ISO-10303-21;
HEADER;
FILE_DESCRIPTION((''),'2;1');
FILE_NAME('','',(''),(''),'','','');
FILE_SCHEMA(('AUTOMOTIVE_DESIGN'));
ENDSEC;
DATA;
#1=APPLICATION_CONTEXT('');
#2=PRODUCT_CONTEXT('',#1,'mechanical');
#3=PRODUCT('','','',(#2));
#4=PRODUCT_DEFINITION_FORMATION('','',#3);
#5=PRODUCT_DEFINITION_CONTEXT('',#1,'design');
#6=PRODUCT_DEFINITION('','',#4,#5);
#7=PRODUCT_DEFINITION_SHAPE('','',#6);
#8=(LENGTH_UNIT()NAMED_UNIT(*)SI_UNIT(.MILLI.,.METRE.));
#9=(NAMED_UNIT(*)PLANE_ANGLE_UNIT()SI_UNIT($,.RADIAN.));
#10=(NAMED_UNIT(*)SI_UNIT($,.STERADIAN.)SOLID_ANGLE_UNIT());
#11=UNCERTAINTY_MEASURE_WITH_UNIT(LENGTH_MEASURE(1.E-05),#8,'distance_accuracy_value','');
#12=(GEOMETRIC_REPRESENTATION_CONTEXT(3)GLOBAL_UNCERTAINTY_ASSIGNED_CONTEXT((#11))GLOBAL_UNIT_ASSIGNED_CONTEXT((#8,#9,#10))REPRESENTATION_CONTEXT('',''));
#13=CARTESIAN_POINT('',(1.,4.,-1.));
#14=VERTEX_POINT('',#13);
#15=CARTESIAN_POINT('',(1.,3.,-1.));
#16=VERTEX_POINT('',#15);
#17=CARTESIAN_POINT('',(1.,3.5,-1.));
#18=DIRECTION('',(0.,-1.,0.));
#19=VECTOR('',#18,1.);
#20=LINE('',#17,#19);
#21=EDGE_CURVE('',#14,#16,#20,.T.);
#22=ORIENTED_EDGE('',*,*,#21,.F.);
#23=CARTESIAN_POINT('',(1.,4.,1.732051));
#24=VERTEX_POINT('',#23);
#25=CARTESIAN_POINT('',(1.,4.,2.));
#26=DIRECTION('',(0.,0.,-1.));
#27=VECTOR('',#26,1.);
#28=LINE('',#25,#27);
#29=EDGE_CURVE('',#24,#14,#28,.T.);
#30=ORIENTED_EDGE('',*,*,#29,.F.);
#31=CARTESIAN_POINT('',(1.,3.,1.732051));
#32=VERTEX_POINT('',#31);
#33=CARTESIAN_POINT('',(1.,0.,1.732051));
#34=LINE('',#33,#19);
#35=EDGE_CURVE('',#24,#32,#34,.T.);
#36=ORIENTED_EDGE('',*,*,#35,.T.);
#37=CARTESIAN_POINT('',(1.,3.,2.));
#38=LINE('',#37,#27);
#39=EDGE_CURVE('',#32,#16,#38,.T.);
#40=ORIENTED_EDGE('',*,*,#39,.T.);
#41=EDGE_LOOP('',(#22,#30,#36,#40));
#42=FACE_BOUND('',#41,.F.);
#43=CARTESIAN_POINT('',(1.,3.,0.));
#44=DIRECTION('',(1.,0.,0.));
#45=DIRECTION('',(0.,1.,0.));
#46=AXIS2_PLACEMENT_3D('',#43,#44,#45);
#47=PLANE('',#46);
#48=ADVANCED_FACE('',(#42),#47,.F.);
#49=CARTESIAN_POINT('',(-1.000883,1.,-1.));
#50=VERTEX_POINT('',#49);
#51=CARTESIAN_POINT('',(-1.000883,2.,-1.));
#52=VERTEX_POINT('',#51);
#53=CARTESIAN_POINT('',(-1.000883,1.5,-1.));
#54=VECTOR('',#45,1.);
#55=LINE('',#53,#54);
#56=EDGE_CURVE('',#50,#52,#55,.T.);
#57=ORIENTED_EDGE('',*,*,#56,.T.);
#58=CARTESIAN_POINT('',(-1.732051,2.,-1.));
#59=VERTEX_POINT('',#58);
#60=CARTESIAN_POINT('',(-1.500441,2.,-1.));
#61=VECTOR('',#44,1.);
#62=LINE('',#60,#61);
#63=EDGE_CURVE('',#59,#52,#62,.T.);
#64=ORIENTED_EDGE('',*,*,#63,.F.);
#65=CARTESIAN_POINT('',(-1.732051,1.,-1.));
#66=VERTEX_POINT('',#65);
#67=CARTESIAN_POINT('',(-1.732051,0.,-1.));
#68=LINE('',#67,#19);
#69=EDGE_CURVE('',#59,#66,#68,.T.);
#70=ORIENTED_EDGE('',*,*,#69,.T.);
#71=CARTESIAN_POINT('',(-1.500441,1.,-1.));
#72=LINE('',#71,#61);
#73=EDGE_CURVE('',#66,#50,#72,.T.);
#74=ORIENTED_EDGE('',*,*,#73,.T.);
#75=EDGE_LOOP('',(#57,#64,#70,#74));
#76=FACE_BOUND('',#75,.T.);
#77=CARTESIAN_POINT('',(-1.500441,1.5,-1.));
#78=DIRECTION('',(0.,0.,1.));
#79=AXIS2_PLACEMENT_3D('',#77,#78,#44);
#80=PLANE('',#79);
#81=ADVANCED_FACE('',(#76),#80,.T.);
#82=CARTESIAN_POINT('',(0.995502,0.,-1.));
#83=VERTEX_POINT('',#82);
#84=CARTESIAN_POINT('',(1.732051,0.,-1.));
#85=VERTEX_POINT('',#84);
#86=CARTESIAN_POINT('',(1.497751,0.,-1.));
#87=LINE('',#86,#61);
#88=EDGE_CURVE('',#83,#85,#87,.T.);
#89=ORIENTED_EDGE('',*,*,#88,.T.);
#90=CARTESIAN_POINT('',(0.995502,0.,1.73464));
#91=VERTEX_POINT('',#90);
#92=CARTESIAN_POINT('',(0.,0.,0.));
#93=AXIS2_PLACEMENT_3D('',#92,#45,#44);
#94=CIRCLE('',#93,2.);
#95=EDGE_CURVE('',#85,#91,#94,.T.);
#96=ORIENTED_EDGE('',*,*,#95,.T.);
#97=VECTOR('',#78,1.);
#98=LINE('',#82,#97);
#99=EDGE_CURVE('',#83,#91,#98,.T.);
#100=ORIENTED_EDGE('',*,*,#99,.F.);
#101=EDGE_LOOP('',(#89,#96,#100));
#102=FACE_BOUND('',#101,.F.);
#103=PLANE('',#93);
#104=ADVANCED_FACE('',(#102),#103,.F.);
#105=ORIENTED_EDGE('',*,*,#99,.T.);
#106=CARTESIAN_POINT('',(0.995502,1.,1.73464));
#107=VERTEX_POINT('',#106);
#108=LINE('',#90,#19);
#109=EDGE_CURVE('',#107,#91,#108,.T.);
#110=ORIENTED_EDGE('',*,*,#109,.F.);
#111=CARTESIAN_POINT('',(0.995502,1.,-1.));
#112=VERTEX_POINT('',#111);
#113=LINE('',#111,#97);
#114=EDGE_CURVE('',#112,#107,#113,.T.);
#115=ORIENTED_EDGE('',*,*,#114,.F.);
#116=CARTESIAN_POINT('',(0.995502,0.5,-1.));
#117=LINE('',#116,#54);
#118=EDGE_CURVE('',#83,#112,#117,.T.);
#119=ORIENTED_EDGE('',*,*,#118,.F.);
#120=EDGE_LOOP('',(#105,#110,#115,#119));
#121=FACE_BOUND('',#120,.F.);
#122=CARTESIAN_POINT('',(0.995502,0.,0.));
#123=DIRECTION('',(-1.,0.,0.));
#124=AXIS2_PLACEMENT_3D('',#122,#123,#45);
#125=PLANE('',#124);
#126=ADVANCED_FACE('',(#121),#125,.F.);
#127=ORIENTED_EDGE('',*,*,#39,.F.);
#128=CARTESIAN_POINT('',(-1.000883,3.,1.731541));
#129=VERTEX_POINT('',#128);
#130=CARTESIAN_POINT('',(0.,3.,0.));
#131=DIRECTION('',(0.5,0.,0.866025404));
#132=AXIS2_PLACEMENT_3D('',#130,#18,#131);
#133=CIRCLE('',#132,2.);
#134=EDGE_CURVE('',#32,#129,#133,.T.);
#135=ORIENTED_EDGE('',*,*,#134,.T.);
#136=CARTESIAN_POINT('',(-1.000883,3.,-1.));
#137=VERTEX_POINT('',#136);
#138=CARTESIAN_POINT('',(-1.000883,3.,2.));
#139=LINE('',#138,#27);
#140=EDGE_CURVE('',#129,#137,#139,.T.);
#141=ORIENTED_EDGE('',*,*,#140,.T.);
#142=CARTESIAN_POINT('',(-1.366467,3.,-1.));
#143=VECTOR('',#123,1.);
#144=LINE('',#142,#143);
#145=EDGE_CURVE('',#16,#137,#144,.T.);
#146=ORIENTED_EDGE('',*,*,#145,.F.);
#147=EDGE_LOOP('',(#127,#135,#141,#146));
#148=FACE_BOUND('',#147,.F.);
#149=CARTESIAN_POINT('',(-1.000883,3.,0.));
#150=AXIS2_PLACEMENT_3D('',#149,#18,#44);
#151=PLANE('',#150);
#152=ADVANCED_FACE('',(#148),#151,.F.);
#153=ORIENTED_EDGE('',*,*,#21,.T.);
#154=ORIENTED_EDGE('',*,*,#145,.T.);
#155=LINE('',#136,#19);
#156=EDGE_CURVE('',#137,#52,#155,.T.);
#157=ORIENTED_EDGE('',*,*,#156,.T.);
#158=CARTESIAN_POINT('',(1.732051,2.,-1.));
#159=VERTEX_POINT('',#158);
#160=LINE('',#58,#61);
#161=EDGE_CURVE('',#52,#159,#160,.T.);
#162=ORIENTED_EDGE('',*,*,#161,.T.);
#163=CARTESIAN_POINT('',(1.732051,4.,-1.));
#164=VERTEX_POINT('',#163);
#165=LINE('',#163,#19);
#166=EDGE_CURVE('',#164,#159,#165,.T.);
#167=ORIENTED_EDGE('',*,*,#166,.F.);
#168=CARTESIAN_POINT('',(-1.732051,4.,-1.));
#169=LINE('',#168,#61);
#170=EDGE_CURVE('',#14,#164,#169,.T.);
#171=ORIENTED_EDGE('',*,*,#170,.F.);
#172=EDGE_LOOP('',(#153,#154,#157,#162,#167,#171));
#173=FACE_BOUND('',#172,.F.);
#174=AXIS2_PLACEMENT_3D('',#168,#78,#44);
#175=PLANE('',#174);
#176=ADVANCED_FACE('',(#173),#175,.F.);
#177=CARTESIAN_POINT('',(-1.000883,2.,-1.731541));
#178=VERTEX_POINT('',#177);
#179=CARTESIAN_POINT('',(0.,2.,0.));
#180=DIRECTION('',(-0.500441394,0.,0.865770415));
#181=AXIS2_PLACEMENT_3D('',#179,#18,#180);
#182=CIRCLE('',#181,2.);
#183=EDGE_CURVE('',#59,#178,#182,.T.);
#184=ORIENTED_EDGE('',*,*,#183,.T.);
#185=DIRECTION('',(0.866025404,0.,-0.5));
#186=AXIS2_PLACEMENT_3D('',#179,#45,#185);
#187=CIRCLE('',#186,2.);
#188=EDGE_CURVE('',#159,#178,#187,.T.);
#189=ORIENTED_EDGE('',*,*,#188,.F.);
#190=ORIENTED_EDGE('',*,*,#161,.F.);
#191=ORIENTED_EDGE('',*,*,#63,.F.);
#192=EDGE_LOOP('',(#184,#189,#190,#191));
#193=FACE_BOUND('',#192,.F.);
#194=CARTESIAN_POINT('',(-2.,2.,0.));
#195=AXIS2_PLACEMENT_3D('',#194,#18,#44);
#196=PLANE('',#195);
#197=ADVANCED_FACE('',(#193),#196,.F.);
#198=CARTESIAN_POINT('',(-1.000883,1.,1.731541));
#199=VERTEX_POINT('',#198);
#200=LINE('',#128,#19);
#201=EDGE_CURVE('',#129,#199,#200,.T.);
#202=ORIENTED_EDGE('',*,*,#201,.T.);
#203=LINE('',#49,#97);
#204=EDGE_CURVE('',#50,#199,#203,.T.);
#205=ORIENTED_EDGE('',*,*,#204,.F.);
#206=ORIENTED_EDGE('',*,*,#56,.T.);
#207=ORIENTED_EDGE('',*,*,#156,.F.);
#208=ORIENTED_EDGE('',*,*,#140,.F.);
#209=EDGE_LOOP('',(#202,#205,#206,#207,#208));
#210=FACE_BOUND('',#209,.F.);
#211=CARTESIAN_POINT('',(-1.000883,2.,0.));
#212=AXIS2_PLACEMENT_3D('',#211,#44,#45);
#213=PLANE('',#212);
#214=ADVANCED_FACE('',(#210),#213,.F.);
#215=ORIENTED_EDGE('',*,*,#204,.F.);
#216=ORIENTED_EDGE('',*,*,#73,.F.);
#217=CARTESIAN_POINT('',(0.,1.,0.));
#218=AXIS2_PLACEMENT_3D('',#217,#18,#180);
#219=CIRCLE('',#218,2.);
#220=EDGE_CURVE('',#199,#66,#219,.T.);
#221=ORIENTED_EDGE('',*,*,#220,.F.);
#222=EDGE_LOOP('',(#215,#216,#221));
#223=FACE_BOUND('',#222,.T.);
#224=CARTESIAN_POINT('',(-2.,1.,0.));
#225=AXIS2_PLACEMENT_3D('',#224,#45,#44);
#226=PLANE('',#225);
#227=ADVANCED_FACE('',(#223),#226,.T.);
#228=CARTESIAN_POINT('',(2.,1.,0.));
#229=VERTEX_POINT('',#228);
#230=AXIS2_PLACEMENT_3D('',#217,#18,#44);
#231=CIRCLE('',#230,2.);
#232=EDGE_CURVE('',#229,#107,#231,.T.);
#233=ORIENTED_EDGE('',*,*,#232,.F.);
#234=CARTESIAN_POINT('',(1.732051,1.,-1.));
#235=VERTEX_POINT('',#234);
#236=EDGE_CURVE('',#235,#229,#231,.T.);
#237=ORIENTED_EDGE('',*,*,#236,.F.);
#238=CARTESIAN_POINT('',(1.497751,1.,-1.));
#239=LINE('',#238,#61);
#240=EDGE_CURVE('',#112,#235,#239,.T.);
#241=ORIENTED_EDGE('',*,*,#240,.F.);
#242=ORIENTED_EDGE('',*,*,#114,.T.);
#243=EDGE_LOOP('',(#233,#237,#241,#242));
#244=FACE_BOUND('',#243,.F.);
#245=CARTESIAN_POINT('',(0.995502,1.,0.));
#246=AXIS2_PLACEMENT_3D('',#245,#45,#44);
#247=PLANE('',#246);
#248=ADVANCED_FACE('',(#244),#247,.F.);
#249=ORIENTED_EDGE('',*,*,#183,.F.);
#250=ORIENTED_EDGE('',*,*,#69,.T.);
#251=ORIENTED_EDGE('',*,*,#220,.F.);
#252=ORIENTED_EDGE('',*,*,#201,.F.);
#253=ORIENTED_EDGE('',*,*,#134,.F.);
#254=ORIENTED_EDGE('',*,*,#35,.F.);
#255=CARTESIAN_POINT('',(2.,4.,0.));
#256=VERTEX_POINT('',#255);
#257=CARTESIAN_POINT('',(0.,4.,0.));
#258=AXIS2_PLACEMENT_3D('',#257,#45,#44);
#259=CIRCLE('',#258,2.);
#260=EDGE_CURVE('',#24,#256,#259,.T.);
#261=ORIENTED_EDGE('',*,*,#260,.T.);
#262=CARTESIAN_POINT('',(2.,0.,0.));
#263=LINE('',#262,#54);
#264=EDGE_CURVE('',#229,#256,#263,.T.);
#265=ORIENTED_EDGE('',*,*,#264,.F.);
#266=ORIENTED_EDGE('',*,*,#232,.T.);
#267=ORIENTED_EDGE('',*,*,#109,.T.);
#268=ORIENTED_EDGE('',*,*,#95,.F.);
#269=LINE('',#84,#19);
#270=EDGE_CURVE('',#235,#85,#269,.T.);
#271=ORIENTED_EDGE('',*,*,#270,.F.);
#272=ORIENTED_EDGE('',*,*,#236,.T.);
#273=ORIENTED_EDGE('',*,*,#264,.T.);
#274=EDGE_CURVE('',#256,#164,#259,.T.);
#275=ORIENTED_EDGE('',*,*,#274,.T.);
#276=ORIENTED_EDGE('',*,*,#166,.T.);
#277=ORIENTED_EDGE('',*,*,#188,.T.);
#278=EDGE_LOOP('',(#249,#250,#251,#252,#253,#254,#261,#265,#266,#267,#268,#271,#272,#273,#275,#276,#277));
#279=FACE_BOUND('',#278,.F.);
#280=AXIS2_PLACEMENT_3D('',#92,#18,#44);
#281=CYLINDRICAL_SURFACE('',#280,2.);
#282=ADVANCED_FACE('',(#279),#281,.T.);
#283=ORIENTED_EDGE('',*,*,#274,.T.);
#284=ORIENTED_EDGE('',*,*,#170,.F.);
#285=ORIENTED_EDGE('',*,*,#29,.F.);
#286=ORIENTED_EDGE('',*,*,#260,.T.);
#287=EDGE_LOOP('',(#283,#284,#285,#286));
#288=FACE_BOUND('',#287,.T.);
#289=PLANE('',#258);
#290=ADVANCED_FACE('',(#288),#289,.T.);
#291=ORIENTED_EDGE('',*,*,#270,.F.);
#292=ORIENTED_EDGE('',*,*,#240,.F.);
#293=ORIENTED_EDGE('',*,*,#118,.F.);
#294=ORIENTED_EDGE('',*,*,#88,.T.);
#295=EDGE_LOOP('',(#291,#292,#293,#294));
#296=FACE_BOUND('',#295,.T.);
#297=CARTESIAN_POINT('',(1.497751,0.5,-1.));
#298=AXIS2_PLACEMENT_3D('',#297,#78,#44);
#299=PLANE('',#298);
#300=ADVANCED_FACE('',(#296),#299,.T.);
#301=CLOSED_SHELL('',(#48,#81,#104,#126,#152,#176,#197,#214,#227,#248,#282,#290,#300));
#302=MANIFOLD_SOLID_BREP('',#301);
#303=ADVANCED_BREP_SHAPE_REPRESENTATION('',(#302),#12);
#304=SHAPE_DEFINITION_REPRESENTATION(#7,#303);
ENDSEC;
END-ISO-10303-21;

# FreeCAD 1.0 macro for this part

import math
import FreeCAD as App
import Part
import Sketcher
from FreeCAD import Vector

doc = App.newDocument("Part")
body = doc.addObject("PartDesign::Body", "Body")

sketch1 = doc.addObject("Sketcher::SketchObject", "Sketch")
body.addObject(sketch1)
sketch1.AttachmentSupport = (doc.XZ_Plane, [""])
sketch1.MapMode = "FlatFace"
sketch1.addGeometry(Part.Circle(Vector(0, 0, 0), Vector(0, 0, 1), 2), False)
sketch1.addConstraint([
    Sketcher.Constraint("Coincident", 0, 3, -1, 1),
    Sketcher.Constraint("Diameter", 0, 4.0),
])
pad1 = doc.addObject("PartDesign::Pad", "Pad")
body.addObject(pad1)
pad1.Profile = sketch1
pad1.Length = 4
pad1.Reversed = True

sketch2 = doc.addObject("Sketcher::SketchObject", "Sketch001")
body.addObject(sketch2)
sketch2.AttachmentSupport = (doc.XY_Plane, [""])
sketch2.MapMode = "FlatFace"
sketch2.addGeometry([
    Part.LineSegment(Vector(1, 4, 0), Vector(-2, 4, 0)),
    Part.LineSegment(Vector(-2, 4, 0), Vector(-2, 2, 0)),
    Part.LineSegment(Vector(-2, 2, 0), Vector(-1.000883, 2, 0)),
    Part.LineSegment(Vector(-1.000883, 2, 0), Vector(-1.000883, 3, 0)),
    Part.LineSegment(Vector(-1.000883, 3, 0), Vector(1, 3, 0)),
    Part.LineSegment(Vector(1, 3, 0), Vector(1, 4, 0)),
], False)
sketch2.addConstraint([
    Sketcher.Constraint("Coincident", 0, 2, 1, 1),
    Sketcher.Constraint("Coincident", 1, 2, 2, 1),
    Sketcher.Constraint("Coincident", 2, 2, 3, 1),
    Sketcher.Constraint("Coincident", 3, 2, 4, 1),
    Sketcher.Constraint("Coincident", 4, 2, 5, 1),
    Sketcher.Constraint("Coincident", 5, 2, 0, 1),
    Sketcher.Constraint("Horizontal", 0),
    Sketcher.Constraint("Vertical", 1),
    Sketcher.Constraint("Horizontal", 2),
    Sketcher.Constraint("Vertical", 3),
    Sketcher.Constraint("Horizontal", 4),
    Sketcher.Constraint("Vertical", 5),
    Sketcher.Constraint("Equal", 3, 5),
    Sketcher.Constraint("DistanceX", 0, 2, 0, 1, 3.0),
    Sketcher.Constraint("DistanceY", 1, 2, 1, 1, 2.0),
    Sketcher.Constraint("DistanceX", 0, 2, -1, 1, 2.0),
    Sketcher.Constraint("DistanceY", -1, 1, 0, 2, 4.0),
    Sketcher.Constraint("DistanceX", 2, 1, 2, 2, 0.999117),
])
pocket1 = doc.addObject("PartDesign::Pocket", "Pocket")
body.addObject(pocket1)
pocket1.Profile = sketch2
pocket1.Length = 4
pocket1.Midplane = True

sketch3 = doc.addObject("Sketcher::SketchObject", "Sketch002")
body.addObject(sketch3)
sketch3.AttachmentSupport = (doc.XZ_Plane, [""])
sketch3.MapMode = "FlatFace"
sketch3.AttachmentOffset = App.Placement(Vector(0, 0, -4), App.Rotation())
sketch3.addGeometry([
    Part.LineSegment(Vector(-1.732051, -1, 0), Vector(1.732051, -1, 0)),
    Part.ArcOfCircle(Part.Circle(Vector(0, 0, 0), Vector(0, 0, 1), 2), math.radians(-150), math.radians(-30)),
], False)
sketch3.addConstraint([
    Sketcher.Constraint("Coincident", 0, 1, 1, 1),
    Sketcher.Constraint("Coincident", 1, 2, 0, 2),
    Sketcher.Constraint("Horizontal", 0),
    Sketcher.Constraint("Coincident", 1, 3, -1, 1),
    Sketcher.Constraint("Radius", 1, 2.0),
    Sketcher.Constraint("DistanceY", 0, 1, -1, 1, 1.0),
])
pocket2 = doc.addObject("PartDesign::Pocket", "Pocket001")
body.addObject(pocket2)
pocket2.Profile = sketch3
pocket2.Length = 2
pocket2.Reversed = True

sketch4 = doc.addObject("Sketcher::SketchObject", "Sketch003")
body.addObject(sketch4)
sketch4.AttachmentSupport = (doc.XY_Plane, [""])
sketch4.MapMode = "FlatFace"
sketch4.addGeometry([
    Part.LineSegment(Vector(-2, 2, 0), Vector(-2, 1, 0)),
    Part.LineSegment(Vector(-2, 1, 0), Vector(-1.000883, 1, 0)),
    Part.LineSegment(Vector(-1.000883, 1, 0), Vector(-1.000883, 2, 0)),
    Part.LineSegment(Vector(-1.000883, 2, 0), Vector(-2, 2, 0)),
    Part.LineSegment(Vector(0.995502, 1, 0), Vector(0.995502, 0, 0)),
    Part.LineSegment(Vector(0.995502, 0, 0), Vector(2, 0, 0)),
    Part.LineSegment(Vector(2, 0, 0), Vector(2, 1, 0)),
    Part.LineSegment(Vector(2, 1, 0), Vector(0.995502, 1, 0)),
], False)
sketch4.addConstraint([
    Sketcher.Constraint("Coincident", 0, 2, 1, 1),
    Sketcher.Constraint("Coincident", 1, 2, 2, 1),
    Sketcher.Constraint("Coincident", 2, 2, 3, 1),
    Sketcher.Constraint("Coincident", 3, 2, 0, 1),
    Sketcher.Constraint("Coincident", 4, 2, 5, 1),
    Sketcher.Constraint("Coincident", 5, 2, 6, 1),
    Sketcher.Constraint("Coincident", 6, 2, 7, 1),
    Sketcher.Constraint("Coincident", 7, 2, 4, 1),
    Sketcher.Constraint("Vertical", 0),
    Sketcher.Constraint("Horizontal", 1),
    Sketcher.Constraint("Vertical", 2),
    Sketcher.Constraint("Horizontal", 3),
    Sketcher.Constraint("Vertical", 4),
    Sketcher.Constraint("Horizontal", 5),
    Sketcher.Constraint("Vertical", 6),
    Sketcher.Constraint("Horizontal", 7),
    Sketcher.Constraint("Symmetric", 0, 2, 6, 2, -2),
    Sketcher.Constraint("PointOnObject", 4, 2, -1),
    Sketcher.Constraint("Equal", 2, 4),
    Sketcher.Constraint("DistanceY", 0, 2, 0, 1, 1.0),
    Sketcher.Constraint("DistanceX", 0, 2, -1, 1, 2.0),
    Sketcher.Constraint("DistanceX", 5, 1, 5, 2, 1.004498),
    Sketcher.Constraint("DistanceX", 1, 1, 1, 2, 0.999117),
])
pocket3 = doc.addObject("PartDesign::Pocket", "Pocket002")
body.addObject(pocket3)
pocket3.Profile = sketch4
pocket3.Type = "TwoLengths"
pocket3.Length = 2
pocket3.Length2 = 1
pocket3.Reversed = True

doc.recompute()
